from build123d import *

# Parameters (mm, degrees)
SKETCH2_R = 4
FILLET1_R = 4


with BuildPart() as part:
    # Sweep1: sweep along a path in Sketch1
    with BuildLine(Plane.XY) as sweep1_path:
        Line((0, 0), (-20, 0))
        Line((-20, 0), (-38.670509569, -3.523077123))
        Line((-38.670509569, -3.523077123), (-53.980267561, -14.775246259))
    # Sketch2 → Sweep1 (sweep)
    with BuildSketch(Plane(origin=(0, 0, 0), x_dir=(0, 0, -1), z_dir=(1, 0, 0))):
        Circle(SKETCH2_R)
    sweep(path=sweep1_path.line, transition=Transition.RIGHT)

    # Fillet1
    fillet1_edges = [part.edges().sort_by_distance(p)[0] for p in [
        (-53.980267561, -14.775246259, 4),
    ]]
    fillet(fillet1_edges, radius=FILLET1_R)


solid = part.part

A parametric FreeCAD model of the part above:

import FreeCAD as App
import Part
import Sketcher
Q = App.Units.Quantity


def edges_at(feature, points):
    """Names of the edges that pass closest to the given points."""
    edges = feature.Shape.Edges
    near = lambda p: min(range(len(edges)), key=lambda i: edges[i].distToShape(Part.Vertex(*p))[0])
    return sorted({f"Edge{near(p) + 1}" for p in points})

doc = App.newDocument("Part")
body = doc.addObject("PartDesign::Body", "Body")

sketch1 = body.newObject("Sketcher::SketchObject", "Sketch")
sketch1.AttachmentSupport = (doc.getObject("YZ_Plane"), [""])
sketch1.MapMode = "FlatFace"
sketch1.addGeometry(Part.Circle(App.Vector(0, 0, 0), App.Vector(0, 0, 1), 4), False)
sketch1.addConstraint([
    Sketcher.Constraint("Coincident", 0, 3, -1, 1),
    Sketcher.Constraint("Diameter", 0, Q("8 mm")),
])

sketch2 = body.newObject("Sketcher::SketchObject", "Sketch001")
sketch2.AttachmentSupport = (doc.getObject("XY_Plane"), [""])
sketch2.MapMode = "FlatFace"
sketch2.addGeometry([
    Part.LineSegment(App.Vector(0, 0, 0), App.Vector(-20, 0, 0)),
    Part.LineSegment(App.Vector(-20, 0, 0), App.Vector(-39, -4, 0)),
    Part.LineSegment(App.Vector(-39, -4, 0), App.Vector(-54, -15, 0)),
], False)
sketch2.addConstraint([
    Sketcher.Constraint("Coincident", 0, 2, 1, 1),
    Sketcher.Constraint("Coincident", 1, 2, 2, 1),
    Sketcher.Constraint("Horizontal", 0),
    Sketcher.Constraint("Coincident", 0, 1, -1, 1),
    Sketcher.Constraint("Equal", 1, 2),
    Sketcher.Constraint("DistanceX", 0, 2, 0, 1, Q("20 mm")),
    Sketcher.Constraint("Distance", 1, Q("19 mm")),
    Sketcher.Constraint("DistanceX", 1, 2, -1, 1, Q("38.67051 mm")),
    Sketcher.Constraint("DistanceY", 2, 2, 1, 2, Q("11.252169 mm")),
])
doc.recompute()

additivepipe = body.newObject("PartDesign::AdditivePipe", "AdditivePipe")
additivepipe.Profile = sketch1
additivepipe.Spine = (sketch2, ["Edge1", "Edge2", "Edge3"])
additivepipe.Transition = "Right corner"
doc.recompute()

fillet = body.newObject("PartDesign::Fillet", "Fillet")
fillet.Base = (additivepipe, edges_at(additivepipe, [(-53.98, -14.775, 4)]))
fillet.Radius = 4

doc.recompute()
